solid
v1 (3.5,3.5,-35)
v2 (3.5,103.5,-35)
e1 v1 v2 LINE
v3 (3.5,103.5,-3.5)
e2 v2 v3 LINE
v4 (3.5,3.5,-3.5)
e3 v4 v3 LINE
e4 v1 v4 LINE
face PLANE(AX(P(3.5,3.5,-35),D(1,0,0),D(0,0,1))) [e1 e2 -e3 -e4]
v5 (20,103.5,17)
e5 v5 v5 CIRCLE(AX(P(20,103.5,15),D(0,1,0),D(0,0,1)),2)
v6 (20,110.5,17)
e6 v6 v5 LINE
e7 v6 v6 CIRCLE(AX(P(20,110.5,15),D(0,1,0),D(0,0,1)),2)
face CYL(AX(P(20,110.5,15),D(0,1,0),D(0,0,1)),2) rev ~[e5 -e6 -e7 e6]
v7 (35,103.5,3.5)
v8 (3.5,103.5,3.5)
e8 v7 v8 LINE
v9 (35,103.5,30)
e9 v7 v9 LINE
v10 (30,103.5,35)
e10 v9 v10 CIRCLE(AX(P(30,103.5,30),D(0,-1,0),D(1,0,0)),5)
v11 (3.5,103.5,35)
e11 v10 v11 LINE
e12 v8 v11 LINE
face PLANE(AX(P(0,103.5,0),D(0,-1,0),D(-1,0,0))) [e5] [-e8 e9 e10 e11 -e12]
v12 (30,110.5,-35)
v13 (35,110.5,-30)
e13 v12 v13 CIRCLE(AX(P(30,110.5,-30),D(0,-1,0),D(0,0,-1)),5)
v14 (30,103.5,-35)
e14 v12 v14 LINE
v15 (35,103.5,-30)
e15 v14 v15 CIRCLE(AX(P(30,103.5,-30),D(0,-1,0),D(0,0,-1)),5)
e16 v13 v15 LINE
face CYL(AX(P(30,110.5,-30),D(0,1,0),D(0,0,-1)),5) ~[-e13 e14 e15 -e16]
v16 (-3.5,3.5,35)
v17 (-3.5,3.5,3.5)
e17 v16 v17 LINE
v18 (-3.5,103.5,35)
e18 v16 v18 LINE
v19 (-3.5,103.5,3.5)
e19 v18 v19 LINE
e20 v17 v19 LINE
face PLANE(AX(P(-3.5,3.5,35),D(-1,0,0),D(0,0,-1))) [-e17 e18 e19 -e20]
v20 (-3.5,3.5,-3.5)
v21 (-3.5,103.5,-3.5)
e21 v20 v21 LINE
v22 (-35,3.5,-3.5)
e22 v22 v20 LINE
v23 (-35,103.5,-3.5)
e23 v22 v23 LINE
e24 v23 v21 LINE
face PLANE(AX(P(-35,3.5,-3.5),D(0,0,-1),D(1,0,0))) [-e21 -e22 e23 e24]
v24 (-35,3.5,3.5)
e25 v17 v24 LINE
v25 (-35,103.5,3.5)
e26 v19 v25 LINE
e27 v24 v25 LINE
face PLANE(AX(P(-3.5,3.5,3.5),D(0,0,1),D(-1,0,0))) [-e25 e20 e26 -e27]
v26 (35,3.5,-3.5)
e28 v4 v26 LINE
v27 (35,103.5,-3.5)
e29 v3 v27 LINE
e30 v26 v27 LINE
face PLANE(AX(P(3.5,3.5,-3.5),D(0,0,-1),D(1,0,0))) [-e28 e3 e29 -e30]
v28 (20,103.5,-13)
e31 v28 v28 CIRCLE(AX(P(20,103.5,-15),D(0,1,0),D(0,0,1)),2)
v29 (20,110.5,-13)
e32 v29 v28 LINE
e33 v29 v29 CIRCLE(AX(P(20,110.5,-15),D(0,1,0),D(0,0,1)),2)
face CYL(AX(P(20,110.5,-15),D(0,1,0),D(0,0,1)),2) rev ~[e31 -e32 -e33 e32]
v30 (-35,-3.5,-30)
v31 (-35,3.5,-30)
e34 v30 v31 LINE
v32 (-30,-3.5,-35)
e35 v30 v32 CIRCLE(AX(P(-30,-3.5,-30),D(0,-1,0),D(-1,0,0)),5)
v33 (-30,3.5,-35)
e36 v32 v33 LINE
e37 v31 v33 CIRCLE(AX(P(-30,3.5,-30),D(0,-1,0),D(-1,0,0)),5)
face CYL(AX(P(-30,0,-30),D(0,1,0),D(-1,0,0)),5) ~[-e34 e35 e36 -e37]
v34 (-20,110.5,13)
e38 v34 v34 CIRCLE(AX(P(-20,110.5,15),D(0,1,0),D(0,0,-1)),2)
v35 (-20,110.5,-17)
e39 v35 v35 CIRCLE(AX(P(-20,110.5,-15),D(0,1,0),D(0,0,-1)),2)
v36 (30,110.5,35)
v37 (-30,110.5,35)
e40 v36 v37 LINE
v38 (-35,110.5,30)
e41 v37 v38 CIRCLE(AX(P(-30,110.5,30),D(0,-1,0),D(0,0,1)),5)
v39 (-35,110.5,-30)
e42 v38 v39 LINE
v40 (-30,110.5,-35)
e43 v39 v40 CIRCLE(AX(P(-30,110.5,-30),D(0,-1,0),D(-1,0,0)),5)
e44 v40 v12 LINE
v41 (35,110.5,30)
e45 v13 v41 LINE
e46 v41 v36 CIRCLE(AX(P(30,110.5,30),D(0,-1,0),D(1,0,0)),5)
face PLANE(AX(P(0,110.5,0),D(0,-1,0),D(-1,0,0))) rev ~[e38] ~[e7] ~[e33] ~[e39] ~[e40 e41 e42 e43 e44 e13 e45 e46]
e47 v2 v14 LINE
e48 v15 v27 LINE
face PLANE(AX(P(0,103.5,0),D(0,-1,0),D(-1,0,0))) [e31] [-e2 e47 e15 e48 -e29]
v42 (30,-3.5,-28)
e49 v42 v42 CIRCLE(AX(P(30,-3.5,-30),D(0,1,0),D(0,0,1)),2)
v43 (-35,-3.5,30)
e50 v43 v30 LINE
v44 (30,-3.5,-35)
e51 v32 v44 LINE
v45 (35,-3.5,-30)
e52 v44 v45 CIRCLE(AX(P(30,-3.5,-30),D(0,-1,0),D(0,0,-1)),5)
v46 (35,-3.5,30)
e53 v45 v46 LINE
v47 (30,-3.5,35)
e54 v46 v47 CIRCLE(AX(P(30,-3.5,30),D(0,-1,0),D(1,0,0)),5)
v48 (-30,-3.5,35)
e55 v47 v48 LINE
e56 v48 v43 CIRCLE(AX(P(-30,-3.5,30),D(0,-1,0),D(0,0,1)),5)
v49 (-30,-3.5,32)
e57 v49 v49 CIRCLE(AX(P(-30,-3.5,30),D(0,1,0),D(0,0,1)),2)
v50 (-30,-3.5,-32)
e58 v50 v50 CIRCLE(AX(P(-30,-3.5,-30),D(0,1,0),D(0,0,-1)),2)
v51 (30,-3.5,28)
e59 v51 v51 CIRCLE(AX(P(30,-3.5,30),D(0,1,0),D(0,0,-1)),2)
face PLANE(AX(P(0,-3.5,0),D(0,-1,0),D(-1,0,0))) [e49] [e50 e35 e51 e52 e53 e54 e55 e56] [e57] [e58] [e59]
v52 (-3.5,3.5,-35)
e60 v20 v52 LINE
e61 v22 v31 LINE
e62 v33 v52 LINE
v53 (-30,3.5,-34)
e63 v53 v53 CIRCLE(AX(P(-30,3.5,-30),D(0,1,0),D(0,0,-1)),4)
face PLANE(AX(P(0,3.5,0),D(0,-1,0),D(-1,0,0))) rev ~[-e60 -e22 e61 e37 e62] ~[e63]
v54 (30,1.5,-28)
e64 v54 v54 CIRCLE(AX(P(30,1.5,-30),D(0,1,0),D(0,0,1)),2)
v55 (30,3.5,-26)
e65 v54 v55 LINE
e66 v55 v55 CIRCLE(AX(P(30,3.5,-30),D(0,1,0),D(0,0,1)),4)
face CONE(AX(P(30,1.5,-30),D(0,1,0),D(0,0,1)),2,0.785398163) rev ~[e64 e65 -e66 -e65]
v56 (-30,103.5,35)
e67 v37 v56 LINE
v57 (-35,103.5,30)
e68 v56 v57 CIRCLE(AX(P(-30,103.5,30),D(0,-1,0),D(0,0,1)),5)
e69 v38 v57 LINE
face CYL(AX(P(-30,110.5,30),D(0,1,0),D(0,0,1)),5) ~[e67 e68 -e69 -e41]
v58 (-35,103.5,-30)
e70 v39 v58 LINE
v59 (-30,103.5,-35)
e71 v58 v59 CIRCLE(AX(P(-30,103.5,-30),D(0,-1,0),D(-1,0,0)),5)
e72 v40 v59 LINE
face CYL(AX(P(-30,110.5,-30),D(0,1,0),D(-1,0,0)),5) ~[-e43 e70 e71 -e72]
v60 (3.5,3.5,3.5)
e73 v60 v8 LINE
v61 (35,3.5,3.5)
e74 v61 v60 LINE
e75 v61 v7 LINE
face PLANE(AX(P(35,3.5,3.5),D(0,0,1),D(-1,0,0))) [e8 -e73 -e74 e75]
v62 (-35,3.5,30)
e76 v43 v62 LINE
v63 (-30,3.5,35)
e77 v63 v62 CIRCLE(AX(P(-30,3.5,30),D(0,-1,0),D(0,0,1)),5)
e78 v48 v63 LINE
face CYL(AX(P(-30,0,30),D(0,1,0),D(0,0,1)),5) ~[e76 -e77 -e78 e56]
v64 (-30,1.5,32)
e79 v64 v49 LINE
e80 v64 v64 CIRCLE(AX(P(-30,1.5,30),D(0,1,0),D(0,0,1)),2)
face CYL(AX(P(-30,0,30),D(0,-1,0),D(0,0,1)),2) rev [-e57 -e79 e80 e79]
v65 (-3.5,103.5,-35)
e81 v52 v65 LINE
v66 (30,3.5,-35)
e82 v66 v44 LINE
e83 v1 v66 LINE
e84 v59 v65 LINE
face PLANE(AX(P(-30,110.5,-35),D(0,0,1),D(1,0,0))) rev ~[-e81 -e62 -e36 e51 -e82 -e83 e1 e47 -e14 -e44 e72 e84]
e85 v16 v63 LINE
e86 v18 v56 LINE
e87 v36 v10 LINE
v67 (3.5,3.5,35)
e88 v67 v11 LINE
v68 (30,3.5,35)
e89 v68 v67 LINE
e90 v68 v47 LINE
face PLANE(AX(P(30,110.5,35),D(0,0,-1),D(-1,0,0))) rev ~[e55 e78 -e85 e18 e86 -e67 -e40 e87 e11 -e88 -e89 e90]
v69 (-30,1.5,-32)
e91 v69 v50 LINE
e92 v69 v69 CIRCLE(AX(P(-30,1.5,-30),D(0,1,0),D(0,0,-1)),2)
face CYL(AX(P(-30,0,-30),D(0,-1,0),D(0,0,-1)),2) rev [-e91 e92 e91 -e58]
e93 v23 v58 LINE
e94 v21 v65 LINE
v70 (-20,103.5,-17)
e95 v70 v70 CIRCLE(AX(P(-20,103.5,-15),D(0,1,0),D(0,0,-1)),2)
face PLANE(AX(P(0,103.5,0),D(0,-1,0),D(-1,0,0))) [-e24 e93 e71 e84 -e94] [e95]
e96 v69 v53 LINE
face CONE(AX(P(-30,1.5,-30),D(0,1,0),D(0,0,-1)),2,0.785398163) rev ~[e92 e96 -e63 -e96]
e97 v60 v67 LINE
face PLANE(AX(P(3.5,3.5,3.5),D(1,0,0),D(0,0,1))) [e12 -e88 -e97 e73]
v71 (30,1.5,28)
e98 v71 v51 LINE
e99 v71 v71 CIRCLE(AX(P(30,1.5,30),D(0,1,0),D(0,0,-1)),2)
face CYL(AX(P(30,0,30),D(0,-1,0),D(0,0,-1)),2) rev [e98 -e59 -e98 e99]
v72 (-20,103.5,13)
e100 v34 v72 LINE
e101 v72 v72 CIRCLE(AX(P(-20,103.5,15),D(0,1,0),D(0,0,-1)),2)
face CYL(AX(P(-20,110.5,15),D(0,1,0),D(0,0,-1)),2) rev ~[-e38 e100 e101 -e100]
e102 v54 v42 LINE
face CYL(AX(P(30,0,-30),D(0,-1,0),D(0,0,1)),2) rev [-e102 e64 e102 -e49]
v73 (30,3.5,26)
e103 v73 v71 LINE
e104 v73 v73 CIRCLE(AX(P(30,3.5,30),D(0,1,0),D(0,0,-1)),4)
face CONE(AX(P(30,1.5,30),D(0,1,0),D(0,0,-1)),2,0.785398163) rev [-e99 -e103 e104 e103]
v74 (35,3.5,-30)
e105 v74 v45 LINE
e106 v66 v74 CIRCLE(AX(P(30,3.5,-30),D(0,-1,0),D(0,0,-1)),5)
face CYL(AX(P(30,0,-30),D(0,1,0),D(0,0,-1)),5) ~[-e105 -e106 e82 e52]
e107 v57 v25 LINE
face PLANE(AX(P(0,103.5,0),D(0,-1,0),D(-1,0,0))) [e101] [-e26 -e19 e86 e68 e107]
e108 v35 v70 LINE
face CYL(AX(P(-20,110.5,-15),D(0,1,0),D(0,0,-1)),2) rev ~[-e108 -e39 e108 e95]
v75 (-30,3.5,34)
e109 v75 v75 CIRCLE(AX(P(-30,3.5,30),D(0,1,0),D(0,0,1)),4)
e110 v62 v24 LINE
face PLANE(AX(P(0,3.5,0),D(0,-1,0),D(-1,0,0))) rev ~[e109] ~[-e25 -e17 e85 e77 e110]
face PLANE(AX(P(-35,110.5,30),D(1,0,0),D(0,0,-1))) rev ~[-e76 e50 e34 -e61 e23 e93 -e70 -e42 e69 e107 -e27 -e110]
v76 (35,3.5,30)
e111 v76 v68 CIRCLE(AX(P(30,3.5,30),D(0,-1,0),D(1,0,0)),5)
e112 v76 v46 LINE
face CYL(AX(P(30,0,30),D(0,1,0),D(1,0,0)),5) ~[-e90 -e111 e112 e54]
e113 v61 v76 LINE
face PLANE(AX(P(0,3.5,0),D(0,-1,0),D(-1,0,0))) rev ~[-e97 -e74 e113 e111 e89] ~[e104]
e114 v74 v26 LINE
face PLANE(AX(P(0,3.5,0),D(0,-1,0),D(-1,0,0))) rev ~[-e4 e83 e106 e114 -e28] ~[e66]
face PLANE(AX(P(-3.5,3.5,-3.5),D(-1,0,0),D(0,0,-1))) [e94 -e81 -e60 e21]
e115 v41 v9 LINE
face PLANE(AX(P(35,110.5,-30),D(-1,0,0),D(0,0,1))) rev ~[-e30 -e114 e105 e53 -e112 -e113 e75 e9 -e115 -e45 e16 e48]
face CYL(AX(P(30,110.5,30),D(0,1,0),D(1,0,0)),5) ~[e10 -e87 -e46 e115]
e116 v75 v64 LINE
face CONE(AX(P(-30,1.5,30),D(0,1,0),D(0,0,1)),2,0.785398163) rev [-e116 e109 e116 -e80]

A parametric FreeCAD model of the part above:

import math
import FreeCAD as App
import Part
import Sketcher
from FreeCAD import Vector


def edges_at(feature, points):
    """Names of the edges that pass closest to the given points."""
    edges = feature.Shape.Edges
    near = lambda p: min(range(len(edges)), key=lambda i: edges[i].distToShape(Part.Vertex(*p))[0])
    return sorted({f"Edge{near(p) + 1}" for p in points})


def add_polygon(sketch, points):
    """Adds a closed chain of lines whose ends are joined by coincident constraints."""
    first, n = sketch.GeometryCount, len(points)
    for a, b in zip(points, points[1:] + points[:1]):
        sketch.addGeometry(Part.LineSegment(App.Vector(*a, 0), App.Vector(*b, 0)), False)
    for i in range(n):
        sketch.addConstraint(Sketcher.Constraint("Coincident", first + i, 2, first + (i + 1) % n, 1))

doc = App.newDocument("Part")
body = doc.addObject("PartDesign::Body", "Body")

# Sketch on XZ plane
sketch1 = body.newObject("Sketcher::SketchObject", "Sketch")
sketch1.AttachmentSupport = (doc.getObject("XZ_Plane"), [""])
sketch1.MapMode = "FlatFace"
sketch1.addGeometry([
    Part.LineSegment(Vector(30, -35, 0), Vector(-30, -35, 0)),  # 0
    Part.ArcOfCircle(Part.Circle(Vector(-30, -30, 0), Vector(0, 0, 1), 5), math.radians(180), math.radians(270)),  # 1
    Part.LineSegment(Vector(-35, -30, 0), Vector(-35, 30, 0)),  # 2
    Part.ArcOfCircle(Part.Circle(Vector(-30, 30, 0), Vector(0, 0, 1), 5), math.radians(90), math.radians(180)),  # 3
    Part.LineSegment(Vector(-30, 35, 0), Vector(30, 35, 0)),  # 4
    Part.ArcOfCircle(Part.Circle(Vector(30, 30, 0), Vector(0, 0, 1), 5), math.radians(0), math.radians(90)),  # 5
    Part.LineSegment(Vector(35, 30, 0), Vector(35, -30, 0)),  # 6
    Part.ArcOfCircle(Part.Circle(Vector(30, -30, 0), Vector(0, 0, 1), 5), math.radians(-90), math.radians(0)),  # 7
    Part.Circle(Vector(30, 30, 0), Vector(0, 0, 1), 2),  # 8
    Part.Circle(Vector(-30, 30, 0), Vector(0, 0, 1), 2),  # 9
    Part.Circle(Vector(30, -30, 0), Vector(0, 0, 1), 2),  # 10
    Part.Circle(Vector(-30, -30, 0), Vector(0, 0, 1), 2),  # 11
], False)
sketch1.addConstraint([
    Sketcher.Constraint("Tangent", 0, 2, 1, 2),
    Sketcher.Constraint("Tangent", 1, 1, 2, 1),
    Sketcher.Constraint("Tangent", 2, 2, 3, 2),
    Sketcher.Constraint("Tangent", 3, 1, 4, 1),
    Sketcher.Constraint("Tangent", 4, 2, 5, 2),
    Sketcher.Constraint("Tangent", 5, 1, 6, 1),
    Sketcher.Constraint("Tangent", 6, 2, 7, 2),
    Sketcher.Constraint("Tangent", 7, 1, 0, 1),
    Sketcher.Constraint("Horizontal", 0),
    Sketcher.Constraint("Vertical", 2),
    Sketcher.Constraint("Horizontal", 4),
    Sketcher.Constraint("Vertical", 6),
    Sketcher.Constraint("Coincident", 8, 3, 5, 3),
    Sketcher.Constraint("Coincident", 9, 3, 3, 3),
    Sketcher.Constraint("Coincident", 10, 3, 7, 3),
    Sketcher.Constraint("Coincident", 11, 3, 1, 3),
    Sketcher.Constraint("Equal", 1, 3),
    Sketcher.Constraint("Equal", 3, 5),
    Sketcher.Constraint("Equal", 5, 7),
    Sketcher.Constraint("Equal", 8, 9),
    Sketcher.Constraint("Equal", 9, 10),
    Sketcher.Constraint("Equal", 10, 11),
    Sketcher.Constraint("Symmetric", 1, 3, 5, 3, -1, 1),
    Sketcher.Constraint("Equal", 4, 2),
    Sketcher.Constraint("Diameter", 8, 4.0),
    Sketcher.Constraint("Radius", 1, 5.0),
    Sketcher.Constraint("DistanceX", 0, 2, 0, 1, 60.0),
])
pad1 = body.newObject("PartDesign::Pad", "Pad")
pad1.Profile = sketch1
pad1.Length = 7
pad1.Midplane = True

# Sketch on XZ plane
sketch2 = body.newObject("Sketcher::SketchObject", "Sketch001")
sketch2.AttachmentSupport = (doc.getObject("XZ_Plane"), [""])
sketch2.MapMode = "FlatFace"
sketch2.AttachmentOffset = App.Placement(Vector(0, 0, -3.5), App.Rotation())
add_polygon(sketch2, [(4, -35), (-4, -35), (-4, -4), (-35, -4), (-35, 4), (-4, 4), (-4, 35), (4, 35), (4, 4), (35, 4), (35, -4), (4, -4)])  # lines 0-11
sketch2.addConstraint([
    Sketcher.Constraint("Horizontal", 0),
    Sketcher.Constraint("Vertical", 1),
    Sketcher.Constraint("Horizontal", 2),
    Sketcher.Constraint("Vertical", 3),
    Sketcher.Constraint("Horizontal", 4),
    Sketcher.Constraint("Vertical", 5),
    Sketcher.Constraint("Horizontal", 6),
    Sketcher.Constraint("Vertical", 7),
    Sketcher.Constraint("Horizontal", 8),
    Sketcher.Constraint("Vertical", 9),
    Sketcher.Constraint("Horizontal", 10),
    Sketcher.Constraint("Vertical", 11),
    Sketcher.Constraint("Symmetric", 0, 2, 6, 2, -1, 1),
    Sketcher.Constraint("Symmetric", 2, 2, 8, 2, -1, 1),
    Sketcher.Constraint("Symmetric", 4, 2, 10, 2, -1, 1),
    Sketcher.Constraint("Symmetric", 4, 2, 7, 2, -2),
    Sketcher.Constraint("Equal", 10, 1),
    Sketcher.Constraint("Equal", 6, 3),
    Sketcher.Constraint("DistanceX", 0, 2, 0, 1, 7.0),
    Sketcher.Constraint("DistanceX", 2, 2, 2, 1, 31.5),
])
pad2 = body.newObject("PartDesign::Pad", "Pad001")
pad2.Profile = sketch2
pad2.Length = 100
pad2.Reversed = True

# Sketch on XZ plane
sketch3 = body.newObject("Sketcher::SketchObject", "Sketch002")
sketch3.AttachmentSupport = (doc.getObject("XZ_Plane"), [""])
sketch3.MapMode = "FlatFace"
sketch3.AttachmentOffset = App.Placement(Vector(0, 0, -110.5), App.Rotation())
sketch3.addGeometry([
    Part.LineSegment(Vector(-30, 35, 0), Vector(30, 35, 0)),  # 0
    Part.ArcOfCircle(Part.Circle(Vector(30, 30, 0), Vector(0, 0, 1), 5), math.radians(0), math.radians(90)),  # 1
    Part.LineSegment(Vector(35, 30, 0), Vector(35, -30, 0)),  # 2
    Part.ArcOfCircle(Part.Circle(Vector(30, -30, 0), Vector(0, 0, 1), 5), math.radians(-90), math.radians(0)),  # 3
    Part.LineSegment(Vector(30, -35, 0), Vector(-30, -35, 0)),  # 4
    Part.ArcOfCircle(Part.Circle(Vector(-30, -30, 0), Vector(0, 0, 1), 5), math.radians(180), math.radians(270)),  # 5
    Part.LineSegment(Vector(-35, -30, 0), Vector(-35, 30, 0)),  # 6
    Part.ArcOfCircle(Part.Circle(Vector(-30, 30, 0), Vector(0, 0, 1), 5), math.radians(90), math.radians(180)),  # 7
    Part.Circle(Vector(20, 15, 0), Vector(0, 0, 1), 2),  # 8
    Part.Circle(Vector(-20, 15, 0), Vector(0, 0, 1), 2),  # 9
    Part.Circle(Vector(20, -15, 0), Vector(0, 0, 1), 2),  # 10
    Part.Circle(Vector(-20, -15, 0), Vector(0, 0, 1), 2),  # 11
], False)
sketch3.addConstraint([
    Sketcher.Constraint("Tangent", 0, 2, 1, 2),
    Sketcher.Constraint("Tangent", 1, 1, 2, 1),
    Sketcher.Constraint("Tangent", 2, 2, 3, 2),
    Sketcher.Constraint("Tangent", 3, 1, 4, 1),
    Sketcher.Constraint("Tangent", 4, 2, 5, 2),
    Sketcher.Constraint("Tangent", 5, 1, 6, 1),
    Sketcher.Constraint("Tangent", 6, 2, 7, 2),
    Sketcher.Constraint("Tangent", 7, 1, 0, 1),
    Sketcher.Constraint("Horizontal", 0),
    Sketcher.Constraint("Vertical", 2),
    Sketcher.Constraint("Horizontal", 4),
    Sketcher.Constraint("Vertical", 6),
    Sketcher.Constraint("Equal", 1, 3),
    Sketcher.Constraint("Equal", 3, 5),
    Sketcher.Constraint("Equal", 5, 7),
    Sketcher.Constraint("Equal", 8, 9),
    Sketcher.Constraint("Equal", 9, 10),
    Sketcher.Constraint("Equal", 10, 11),
    Sketcher.Constraint("Symmetric", 1, 3, 5, 3, -1, 1),
    Sketcher.Constraint("Symmetric", 9, 3, 10, 3, -1, 1),
    Sketcher.Constraint("Symmetric", 8, 3, 11, 3, -1, 1),
    Sketcher.Constraint("Symmetric", 8, 3, 9, 3, -2),
    Sketcher.Constraint("Equal", 4, 2),
    Sketcher.Constraint("Diameter", 8, 4.0),
    Sketcher.Constraint("Radius", 1, 5.0),
    Sketcher.Constraint("DistanceX", 0, 1, 0, 2, 60.0),
    Sketcher.Constraint("DistanceX", -1, 1, 8, 3, 20.0),
    Sketcher.Constraint("DistanceY", -1, 1, 8, 3, 15.0),
])
pad3 = body.newObject("PartDesign::Pad", "Pad002")
pad3.Profile = sketch3
pad3.Length = 7
doc.recompute()

chamfer = body.newObject("PartDesign::Chamfer", "Chamfer")
chamfer.Base = (pad3, edges_at(pad3, [
    (30, 3.5, -32),
    (-30, 3.5, -28),
    (30, 3.5, 32),
    (-30, 3.5, 28),
]))
chamfer.Size = 2

doc.recompute()
